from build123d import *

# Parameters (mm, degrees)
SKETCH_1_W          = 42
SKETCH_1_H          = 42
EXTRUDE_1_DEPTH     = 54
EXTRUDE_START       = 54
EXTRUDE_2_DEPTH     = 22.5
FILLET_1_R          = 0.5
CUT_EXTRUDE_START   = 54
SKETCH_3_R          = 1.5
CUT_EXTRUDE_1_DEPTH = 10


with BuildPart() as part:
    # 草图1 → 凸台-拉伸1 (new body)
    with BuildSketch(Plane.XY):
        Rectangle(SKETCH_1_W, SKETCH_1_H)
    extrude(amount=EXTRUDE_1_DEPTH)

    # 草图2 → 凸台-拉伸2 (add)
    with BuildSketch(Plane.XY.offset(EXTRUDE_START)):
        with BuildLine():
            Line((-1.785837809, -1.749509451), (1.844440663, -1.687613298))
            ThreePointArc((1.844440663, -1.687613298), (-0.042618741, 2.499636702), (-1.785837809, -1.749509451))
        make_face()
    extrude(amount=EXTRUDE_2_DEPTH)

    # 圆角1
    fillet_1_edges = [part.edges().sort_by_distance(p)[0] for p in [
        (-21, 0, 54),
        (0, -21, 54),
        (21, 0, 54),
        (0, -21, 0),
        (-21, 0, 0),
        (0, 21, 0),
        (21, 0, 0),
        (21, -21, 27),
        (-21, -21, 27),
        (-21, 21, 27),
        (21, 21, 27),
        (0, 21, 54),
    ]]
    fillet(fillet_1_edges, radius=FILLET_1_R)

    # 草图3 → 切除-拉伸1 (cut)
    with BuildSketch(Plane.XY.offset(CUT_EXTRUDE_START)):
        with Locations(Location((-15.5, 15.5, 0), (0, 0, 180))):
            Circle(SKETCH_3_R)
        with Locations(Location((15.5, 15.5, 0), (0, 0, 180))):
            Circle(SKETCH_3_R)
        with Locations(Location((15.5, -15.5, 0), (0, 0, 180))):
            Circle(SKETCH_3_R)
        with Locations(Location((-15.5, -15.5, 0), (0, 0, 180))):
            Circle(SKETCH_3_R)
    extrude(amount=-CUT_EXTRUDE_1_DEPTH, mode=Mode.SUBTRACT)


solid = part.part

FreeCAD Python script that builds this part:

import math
import FreeCAD as App
import Part
import Sketcher

V = App.Vector
Q = App.Units.Quantity


def edges_at(feature, points):
    """Names of the edges that pass closest to the given points."""
    edges = feature.Shape.Edges
    near = lambda p: min(range(len(edges)), key=lambda i: edges[i].distToShape(Part.Vertex(*p))[0])
    return sorted({f"Edge{near(p) + 1}" for p in points})

doc = App.newDocument("Part")
params = doc.addObject("Spreadsheet::Sheet", "Params")
for row, (alias, value) in enumerate([
    ("sketch1_width", "42 mm"),
    ("pad1_length", "54 mm"),
    ("sketch2_radius", "2.5 mm"),
    ("pad2_length", "22.5 mm"),
    ("fillet_radius", "0.5 mm"),
    ("sketch3_diameter", "3 mm"),
    ("pocket1_length", "10 mm"),
], start=1):
    params.set(f"A{row}", alias)
    params.set(f"B{row}", "=" + value)
    params.setAlias(f"B{row}", alias)

body = doc.addObject("PartDesign::Body", "Body")

sketch1 = body.newObject("Sketcher::SketchObject", "Sketch")
sketch1.AttachmentSupport = (doc.getObject("XY_Plane"), [""])
sketch1.MapMode = "FlatFace"
sketch1.addGeometry(Part.LineSegment(V(-21, 21, 0), V(-21, -21, 0)), False)
sketch1.addGeometry(Part.LineSegment(V(-21, -21, 0), V(21, -21, 0)), False)
sketch1.addGeometry(Part.LineSegment(V(21, -21, 0), V(21, 21, 0)), False)
sketch1.addGeometry(Part.LineSegment(V(21, 21, 0), V(-21, 21, 0)), False)
sketch1.addConstraint(Sketcher.Constraint("Coincident", 0, 2, 1, 1))
sketch1.addConstraint(Sketcher.Constraint("Coincident", 1, 2, 2, 1))
sketch1.addConstraint(Sketcher.Constraint("Coincident", 2, 2, 3, 1))
sketch1.addConstraint(Sketcher.Constraint("Coincident", 3, 2, 0, 1))
sketch1.addConstraint(Sketcher.Constraint("Vertical", 0))
sketch1.addConstraint(Sketcher.Constraint("Horizontal", 1))
sketch1.addConstraint(Sketcher.Constraint("Vertical", 2))
sketch1.addConstraint(Sketcher.Constraint("Horizontal", 3))
sketch1.addConstraint(Sketcher.Constraint("Symmetric", 0, 2, 2, 2, -1, 1))
sketch1.addConstraint(Sketcher.Constraint("Equal", 3, 0))
sketch1.addConstraint(Sketcher.Constraint("DistanceX", 1, 1, 1, 2, Q("42 mm")))
sketch1.setExpression("Constraints[10]", "Params.sketch1_width")
pad1 = body.newObject("PartDesign::Pad", "Pad")
pad1.Profile = sketch1
pad1.setExpression("Length", "Params.pad1_length")

sketch2 = body.newObject("Sketcher::SketchObject", "Sketch001")
sketch2.AttachmentSupport = (doc.getObject("XY_Plane"), [""])
sketch2.MapMode = "FlatFace"
sketch2.AttachmentOffset = App.Placement(V(0, 0, 54), App.Rotation())
sketch2.addGeometry(Part.LineSegment(V(-1.8, -1.7, 0), V(1.8, -1.7, 0)), False)
sketch2.addGeometry(Part.ArcOfCircle(Part.Circle(V(0, 0, 0), V(0, 0, 1), 2.5), math.radians(-42), math.radians(224)), False)
sketch2.addConstraint(Sketcher.Constraint("Coincident", 0, 1, 1, 2))
sketch2.addConstraint(Sketcher.Constraint("Coincident", 1, 1, 0, 2))
sketch2.addConstraint(Sketcher.Constraint("Coincident", 1, 3, -1, 1))
sketch2.addConstraint(Sketcher.Constraint("Radius", 1, Q("2.5 mm")))
sketch2.addConstraint(Sketcher.Constraint("DistanceY", 0, 1, -1, 1, Q("1.749509 mm")))
sketch2.addConstraint(Sketcher.Constraint("DistanceX", -1, 1, 1, 1, Q("1.844441 mm")))
sketch2.setExpression("Constraints[3]", "Params.sketch2_radius")
pad2 = body.newObject("PartDesign::Pad", "Pad001")
pad2.Profile = sketch2
pad2.setExpression("Length", "Params.pad2_length")
doc.recompute()

fillet = body.newObject("PartDesign::Fillet", "Fillet")
fillet.Base = (pad2, edges_at(pad2, [
    (-21, 0, 54),
    (0, -21, 54),
    (21, 0, 54),
    (0, -21, 0),
    (-21, 0, 0),
    (0, 21, 0),
    (21, 0, 0),
    (21, -21, 27),
    (-21, -21, 27),
    (-21, 21, 27),
    (21, 21, 27),
    (0, 21, 54),
]))
fillet.setExpression("Radius", "Params.fillet_radius")

sketch3 = body.newObject("Sketcher::SketchObject", "Sketch002")
sketch3.AttachmentSupport = (doc.getObject("XY_Plane"), [""])
sketch3.MapMode = "FlatFace"
sketch3.AttachmentOffset = App.Placement(V(0, 0, 54), App.Rotation())
sketch3.addGeometry(Part.Circle(V(-15.5, 15.5, 0), V(0, 0, 1), 1.5), False)
sketch3.addGeometry(Part.Circle(V(15.5, 15.5, 0), V(0, 0, 1), 1.5), False)
sketch3.addGeometry(Part.Circle(V(15.5, -15.5, 0), V(0, 0, 1), 1.5), False)
sketch3.addGeometry(Part.Circle(V(-15.5, -15.5, 0), V(0, 0, 1), 1.5), False)
sketch3.addConstraint(Sketcher.Constraint("Equal", 0, 1))
sketch3.addConstraint(Sketcher.Constraint("Equal", 1, 2))
sketch3.addConstraint(Sketcher.Constraint("Equal", 2, 3))
sketch3.addConstraint(Sketcher.Constraint("Symmetric", 0, 3, 2, 3, -1, 1))
sketch3.addConstraint(Sketcher.Constraint("Symmetric", 1, 3, 3, 3, -1, 1))
sketch3.addConstraint(Sketcher.Constraint("Symmetric", 0, 3, 1, 3, -2))
sketch3.addConstraint(Sketcher.Constraint("Diameter", 0, Q("3 mm")))
sketch3.addConstraint(Sketcher.Constraint("DistanceX", 0, 3, 1, 3, Q("31 mm")))
sketch3.addConstraint(Sketcher.Constraint("DistanceY", 2, 3, 1, 3, Q("31 mm")))
sketch3.setExpression("Constraints[6]", "Params.sketch3_diameter")
pocket1 = body.newObject("PartDesign::Pocket", "Pocket")
pocket1.Profile = sketch3
pocket1.setExpression("Length", "Params.pocket1_length")

doc.recompute()
